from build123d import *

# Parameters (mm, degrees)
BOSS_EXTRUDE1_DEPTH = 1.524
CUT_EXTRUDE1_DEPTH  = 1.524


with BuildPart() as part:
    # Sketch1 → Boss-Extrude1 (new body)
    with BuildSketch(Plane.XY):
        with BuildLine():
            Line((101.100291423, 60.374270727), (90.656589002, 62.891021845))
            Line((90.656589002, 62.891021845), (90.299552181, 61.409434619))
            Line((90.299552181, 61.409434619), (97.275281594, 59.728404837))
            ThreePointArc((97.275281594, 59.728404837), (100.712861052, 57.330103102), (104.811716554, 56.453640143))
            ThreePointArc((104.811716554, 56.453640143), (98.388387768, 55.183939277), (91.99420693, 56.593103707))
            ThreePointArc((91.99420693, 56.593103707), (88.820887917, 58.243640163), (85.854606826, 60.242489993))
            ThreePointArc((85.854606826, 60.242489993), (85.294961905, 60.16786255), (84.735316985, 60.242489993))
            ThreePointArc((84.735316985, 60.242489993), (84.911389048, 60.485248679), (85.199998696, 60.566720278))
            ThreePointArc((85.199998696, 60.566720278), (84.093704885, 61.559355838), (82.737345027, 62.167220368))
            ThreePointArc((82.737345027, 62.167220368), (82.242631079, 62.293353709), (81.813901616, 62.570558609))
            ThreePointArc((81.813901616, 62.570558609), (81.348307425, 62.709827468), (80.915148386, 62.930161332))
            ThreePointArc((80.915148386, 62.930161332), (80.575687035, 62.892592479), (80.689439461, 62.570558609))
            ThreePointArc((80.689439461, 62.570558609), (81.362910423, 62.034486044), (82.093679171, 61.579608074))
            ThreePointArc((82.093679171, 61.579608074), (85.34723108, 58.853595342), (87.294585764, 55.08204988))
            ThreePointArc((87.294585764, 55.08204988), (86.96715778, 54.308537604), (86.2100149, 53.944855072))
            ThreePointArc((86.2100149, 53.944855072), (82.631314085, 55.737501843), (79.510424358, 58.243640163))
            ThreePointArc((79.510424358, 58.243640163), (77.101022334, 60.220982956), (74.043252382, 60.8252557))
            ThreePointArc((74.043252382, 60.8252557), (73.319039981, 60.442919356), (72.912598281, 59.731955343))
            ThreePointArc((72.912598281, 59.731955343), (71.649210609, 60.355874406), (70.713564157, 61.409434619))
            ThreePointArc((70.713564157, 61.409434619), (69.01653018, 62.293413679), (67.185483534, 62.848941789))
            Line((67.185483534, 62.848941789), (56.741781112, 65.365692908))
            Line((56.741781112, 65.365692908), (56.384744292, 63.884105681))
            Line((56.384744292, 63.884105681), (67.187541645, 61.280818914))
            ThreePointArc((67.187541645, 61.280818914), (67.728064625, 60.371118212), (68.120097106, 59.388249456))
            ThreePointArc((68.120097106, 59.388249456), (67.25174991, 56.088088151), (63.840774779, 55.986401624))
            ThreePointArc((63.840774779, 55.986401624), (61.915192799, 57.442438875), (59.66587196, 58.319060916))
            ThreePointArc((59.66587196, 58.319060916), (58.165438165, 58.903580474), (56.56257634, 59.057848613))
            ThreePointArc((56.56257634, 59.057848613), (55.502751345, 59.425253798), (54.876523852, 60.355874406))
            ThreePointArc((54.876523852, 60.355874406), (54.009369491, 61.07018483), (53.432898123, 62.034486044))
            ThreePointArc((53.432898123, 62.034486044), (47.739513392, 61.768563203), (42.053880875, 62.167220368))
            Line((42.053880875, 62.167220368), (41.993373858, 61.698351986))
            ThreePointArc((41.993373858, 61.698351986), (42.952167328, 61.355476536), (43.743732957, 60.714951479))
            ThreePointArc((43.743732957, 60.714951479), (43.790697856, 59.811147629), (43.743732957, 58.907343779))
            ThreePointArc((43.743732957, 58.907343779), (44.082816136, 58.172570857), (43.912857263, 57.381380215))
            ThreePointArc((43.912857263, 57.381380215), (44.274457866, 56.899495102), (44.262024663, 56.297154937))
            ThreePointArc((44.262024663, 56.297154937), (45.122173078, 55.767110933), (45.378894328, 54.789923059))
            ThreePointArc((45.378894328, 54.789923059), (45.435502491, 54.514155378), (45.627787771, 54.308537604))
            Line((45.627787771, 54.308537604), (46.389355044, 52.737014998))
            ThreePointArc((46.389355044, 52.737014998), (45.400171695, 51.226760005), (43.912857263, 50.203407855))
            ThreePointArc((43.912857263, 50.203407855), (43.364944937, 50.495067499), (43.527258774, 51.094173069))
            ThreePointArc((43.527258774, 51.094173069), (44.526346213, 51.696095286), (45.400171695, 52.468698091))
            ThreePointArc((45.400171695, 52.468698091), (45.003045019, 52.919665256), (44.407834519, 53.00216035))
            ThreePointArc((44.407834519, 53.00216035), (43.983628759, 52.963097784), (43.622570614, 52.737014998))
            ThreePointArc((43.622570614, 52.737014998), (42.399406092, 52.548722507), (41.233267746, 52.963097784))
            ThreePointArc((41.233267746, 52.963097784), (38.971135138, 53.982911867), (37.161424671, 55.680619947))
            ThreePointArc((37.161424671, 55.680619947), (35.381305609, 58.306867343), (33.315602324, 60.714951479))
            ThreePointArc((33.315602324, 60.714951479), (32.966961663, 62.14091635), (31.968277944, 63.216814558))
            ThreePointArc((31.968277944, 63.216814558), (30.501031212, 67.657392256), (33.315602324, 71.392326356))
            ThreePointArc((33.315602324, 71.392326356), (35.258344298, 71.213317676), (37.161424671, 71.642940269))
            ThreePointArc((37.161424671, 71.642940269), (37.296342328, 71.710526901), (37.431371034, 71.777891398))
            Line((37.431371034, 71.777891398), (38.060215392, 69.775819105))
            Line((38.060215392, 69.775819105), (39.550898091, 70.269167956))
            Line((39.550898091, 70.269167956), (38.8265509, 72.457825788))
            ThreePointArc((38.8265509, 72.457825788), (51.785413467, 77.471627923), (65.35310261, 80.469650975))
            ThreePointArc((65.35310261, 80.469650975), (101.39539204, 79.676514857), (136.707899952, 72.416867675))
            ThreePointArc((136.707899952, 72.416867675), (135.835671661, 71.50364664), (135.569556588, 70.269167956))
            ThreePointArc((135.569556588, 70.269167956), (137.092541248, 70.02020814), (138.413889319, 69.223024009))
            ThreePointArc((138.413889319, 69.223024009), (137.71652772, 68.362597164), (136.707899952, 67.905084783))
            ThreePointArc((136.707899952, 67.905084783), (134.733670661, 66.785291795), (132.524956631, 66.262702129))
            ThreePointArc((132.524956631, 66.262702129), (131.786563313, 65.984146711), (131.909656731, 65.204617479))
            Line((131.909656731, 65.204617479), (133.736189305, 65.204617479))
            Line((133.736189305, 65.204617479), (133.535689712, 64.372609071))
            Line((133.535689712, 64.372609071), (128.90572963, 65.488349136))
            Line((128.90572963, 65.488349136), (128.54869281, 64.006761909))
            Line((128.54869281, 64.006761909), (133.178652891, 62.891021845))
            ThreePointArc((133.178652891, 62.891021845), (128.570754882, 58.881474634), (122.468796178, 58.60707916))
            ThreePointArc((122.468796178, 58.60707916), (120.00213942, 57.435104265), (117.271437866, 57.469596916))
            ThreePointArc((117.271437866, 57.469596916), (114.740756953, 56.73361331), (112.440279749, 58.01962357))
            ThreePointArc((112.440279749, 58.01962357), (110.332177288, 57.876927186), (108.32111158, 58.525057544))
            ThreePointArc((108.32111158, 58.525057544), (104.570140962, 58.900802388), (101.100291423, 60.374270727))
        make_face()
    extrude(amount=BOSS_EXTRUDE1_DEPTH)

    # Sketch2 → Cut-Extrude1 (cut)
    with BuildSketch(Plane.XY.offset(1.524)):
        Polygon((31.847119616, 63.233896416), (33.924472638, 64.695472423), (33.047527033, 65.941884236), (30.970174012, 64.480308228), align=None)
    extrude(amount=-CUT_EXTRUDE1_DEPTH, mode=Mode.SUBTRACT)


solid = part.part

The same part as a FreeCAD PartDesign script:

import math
import FreeCAD as App
import Part
import Sketcher
from FreeCAD import Vector
Q = App.Units.Quantity


def add_polygon(sketch, points):
    """Adds a closed chain of lines whose ends are joined by coincident constraints."""
    first, n = sketch.GeometryCount, len(points)
    for a, b in zip(points, points[1:] + points[:1]):
        sketch.addGeometry(Part.LineSegment(App.Vector(*a, 0), App.Vector(*b, 0)), False)
    for i in range(n):
        sketch.addConstraint(Sketcher.Constraint("Coincident", first + i, 2, first + (i + 1) % n, 1))

doc = App.newDocument("Part")
body = doc.addObject("PartDesign::Body", "Body")

sketch1 = body.newObject("Sketcher::SketchObject", "Sketch")
sketch1.AttachmentSupport = (doc.getObject("XY_Plane"), [""])
sketch1.MapMode = "FlatFace"
sketch1.addGeometry(Part.LineSegment(Vector(90.656589, 62.891022, 0), Vector(101.100291, 60.374271, 0)), False)
sketch1.addGeometry(Part.ArcOfCircle(Part.Circle(Vector(107.68145, 71.049864, 0), Vector(0, 0, 1), 12.54113), math.radians(-121.652493), math.radians(-87.076355)), False)
sketch1.addGeometry(Part.ArcOfCircle(Part.Circle(Vector(111.014598, 63.438497, 0), Vector(0, 0, 1), 5.603281), math.radians(-118.731006), math.radians(-75.259778)), False)
sketch1.addGeometry(Part.ArcOfCircle(Part.Circle(Vector(115.126853, 60.124888, 0), Vector(0, 0, 1), 3.413183), math.radians(-141.916882), math.radians(-51.073417)), False)
sketch1.addGeometry(Part.ArcOfCircle(Part.Circle(Vector(118.711084, 63.334164, 0), Vector(0, 0, 1), 6.038686), math.radians(-103.792358), math.radians(-51.517683)), False)
sketch1.addGeometry(Part.ArcOfCircle(Part.Circle(Vector(125.126386, 67.492396, 0), Vector(0, 0, 1), 9.274246), math.radians(-106.651877), math.radians(-29.745304)), False)
sketch1.addGeometry(Part.LineSegment(Vector(133.178653, 62.891022, 0), Vector(128.548693, 64.006762, 0)), False)
sketch1.addGeometry(Part.LineSegment(Vector(128.548693, 64.006762, 0), Vector(128.90573, 65.488349, 0)), False)
sketch1.addGeometry(Part.LineSegment(Vector(128.90573, 65.488349, 0), Vector(133.53569, 64.372609, 0)), False)
sketch1.addGeometry(Part.LineSegment(Vector(133.53569, 64.372609, 0), Vector(133.736189, 65.204617, 0)), False)
sketch1.addGeometry(Part.LineSegment(Vector(133.736189, 65.204617, 0), Vector(131.909657, 65.204617, 0)), False)
sketch1.addGeometry(Part.ArcOfCircle(Part.Circle(Vector(132.326822, 65.669974, 0), Vector(0, 0, 1), 0.624967), math.radians(71.516456), math.radians(228.125626)), False)
sketch1.addGeometry(Part.ArcOfCircle(Part.Circle(Vector(131.799147, 74.259156, 0), Vector(0, 0, 1), 8.029326), math.radians(-84.813679), math.radians(-52.3126)), False)
sketch1.addGeometry(Part.ArcOfCircle(Part.Circle(Vector(136.243632, 70.269168, 0), Vector(0, 0, 1), 2.409239), math.radians(-78.889422), math.radians(-25.735779)), False)
sketch1.addGeometry(Part.ArcOfCircle(Part.Circle(Vector(135.685214, 66.193864, 0), Vector(0, 0, 1), 4.076944), math.radians(47.987388), math.radians(91.625625)), False)
sketch1.addGeometry(Part.ArcOfCircle(Part.Circle(Vector(137.889738, 70.414932, 0), Vector(0, 0, 1), 2.324756), math.radians(120.555376), math.radians(183.59484)), False)
sketch1.addGeometry(Part.ArcOfCircle(Part.Circle(Vector(78.998312, -118.781464, 0), Vector(0, 0, 1), 199.717797), math.radians(73.204557), math.radians(93.91764)), False)
sketch1.addGeometry(Part.ArcOfCircle(Part.Circle(Vector(78.295431, -10.30105, 0), Vector(0, 0, 1), 91.688734), math.radians(98.11469), math.radians(115.497136)), False)
sketch1.addGeometry(Part.LineSegment(Vector(38.826551, 72.457826, 0), Vector(39.550898, 70.269168, 0)), False)
sketch1.addGeometry(Part.LineSegment(Vector(39.550898, 70.269168, 0), Vector(38.060215, 69.775819, 0)), False)
sketch1.addGeometry(Part.LineSegment(Vector(38.060215, 69.775819, 0), Vector(37.431371, 71.777891, 0)), False)
sketch1.addGeometry(Part.ArcOfCircle(Part.Circle(Vector(78.295751, -10.301689, 0), Vector(0, 0, 1), 91.689449), math.radians(116.467011), math.radians(116.655602)), False)
sketch1.addGeometry(Part.ArcOfCircle(Part.Circle(Vector(34.852534, 77.440726, 0), Vector(0, 0, 1), 6.240617), math.radians(-104.257418), math.radians(-68.285739)), False)
sketch1.addGeometry(Part.ArcOfCircle(Part.Circle(Vector(35.473975, 66.837851, 0), Vector(0, 0, 1), 5.040022), math.radians(115.356343), math.radians(225.927198)), False)
sketch1.addGeometry(Part.ArcOfCircle(Part.Circle(Vector(30.39718, 60.757016, 0), Vector(0, 0, 1), 2.918725), math.radians(-0.82577), math.radians(57.433224)), False)
sketch1.addGeometry(Part.ArcOfCircle(Part.Circle(Vector(13.123378, 41.303609, 0), Vector(0, 0, 1), 28.009394), math.radians(30.883388), math.radians(43.870418)), False)
sketch1.addGeometry(Part.ArcOfCircle(Part.Circle(Vector(43.165013, 60.266876, 0), Vector(0, 0, 1), 7.55492), math.radians(-142.623097), math.radians(-104.814691)), False)
sketch1.addGeometry(Part.ArcOfCircle(Part.Circle(Vector(42.637741, 55.067514, 0), Vector(0, 0, 1), 2.530042), math.radians(-123.718894), math.radians(-67.091904)), False)
sketch1.addGeometry(Part.ArcOfCircle(Part.Circle(Vector(44.27774, 52.092048, 0), Vector(0, 0, 1), 0.919364), math.radians(81.865056), math.radians(135.449582)), False)
sketch1.addGeometry(Part.ArcOfCircle(Part.Circle(Vector(44.594355, 52.159428, 0), Vector(0, 0, 1), 0.863127), math.radians(20.996665), math.radians(102.480017)), False)
sketch1.addGeometry(Part.ArcOfCircle(Part.Circle(Vector(40.724295, 56.876729, 0), Vector(0, 0, 1), 6.426085), math.radians(-64.139257), math.radians(-43.311082)), False)
sketch1.addGeometry(Part.ArcOfCircle(Part.Circle(Vector(43.821801, 50.692833, 0), Vector(0, 0, 1), 0.497824), math.radians(126.274831), math.radians(280.53925)), False)
sketch1.addGeometry(Part.ArcOfCircle(Part.Circle(Vector(42.054014, 54.497492, 0), Vector(0, 0, 1), 4.679152), math.radians(-66.59296), math.radians(-22.100887)), False)
sketch1.addGeometry(Part.LineSegment(Vector(46.389355, 52.737015, 0), Vector(45.627788, 54.308538, 0)), False)
sketch1.addGeometry(Part.ArcOfCircle(Part.Circle(Vector(45.896413, 54.752463, 0), Vector(0, 0, 1), 0.518873), math.radians(175.859898), math.radians(238.821254)), False)
sketch1.addGeometry(Part.ArcOfCircle(Part.Circle(Vector(44.030131, 54.9579, 0), Vector(0, 0, 1), 1.359183), math.radians(-7.099129), math.radians(80.176553)), False)
sketch1.addGeometry(Part.ArcOfCircle(Part.Circle(Vector(43.395229, 56.616345, 0), Vector(0, 0, 1), 0.923698), math.radians(-20.215808), math.radians(55.917412)), False)
sketch1.addGeometry(Part.ArcOfCircle(Part.Circle(Vector(42.811954, 58.03172, 0), Vector(0, 0, 1), 1.278643), math.radians(-30.57174), math.radians(43.220434)), False)
sketch1.addGeometry(Part.ArcOfCircle(Part.Circle(Vector(35.070706, 59.811148, 0), Vector(0, 0, 1), 8.719992), math.radians(-5.949239), math.radians(5.949239)), False)
sketch1.addGeometry(Part.ArcOfCircle(Part.Circle(Vector(41.464613, 58.707772, 0), Vector(0, 0, 1), 3.036964), math.radians(41.369784), math.radians(79.973235)), False)
sketch1.addGeometry(Part.LineSegment(Vector(41.993374, 61.698352, 0), Vector(42.053881, 62.16722, 0)), False)
sketch1.addGeometry(Part.ArcOfCircle(Part.Circle(Vector(48.309625, 110.642927, 0), Vector(0, 0, 1), 48.877689), math.radians(-97.353326), math.radians(-83.983305)), False)
sketch1.addGeometry(Part.ArcOfCircle(Part.Circle(Vector(56.505416, 63.216815, 0), Vector(0, 0, 1), 3.292153), math.radians(-158.952894), math.radians(-119.65527)), False)
sketch1.addGeometry(Part.ArcOfCircle(Part.Circle(Vector(56.582599, 60.827907, 0), Vector(0, 0, 1), 1.770172), math.radians(-164.534422), math.radians(-90.648109)), False)
sketch1.addGeometry(Part.ArcOfCircle(Part.Circle(Vector(56.807659, 53.200194, 0), Vector(0, 0, 1), 5.862779), math.radians(60.822389), math.radians(92.395838)), False)
sketch1.addGeometry(Part.ArcOfCircle(Part.Circle(Vector(57.632338, 49.777152, 0), Vector(0, 0, 1), 8.78063), math.radians(45.003751), math.radians(76.609113)), False)
sketch1.addGeometry(Part.ArcOfCircle(Part.Circle(Vector(65.478238, 58.319061, 0), Vector(0, 0, 1), 2.850015), math.radians(-125.067806), math.radians(22.033703)), False)
sketch1.addGeometry(Part.ArcOfCircle(Part.Circle(Vector(61.660558, 57.38138, 0), Vector(0, 0, 1), 6.764109), math.radians(17.259132), math.radians(35.204017)), False)
sketch1.addGeometry(Part.LineSegment(Vector(67.187542, 61.280819, 0), Vector(56.384744, 63.884106, 0)), False)
sketch1.addGeometry(Part.LineSegment(Vector(56.384744, 63.884106, 0), Vector(56.741781, 65.365693, 0)), False)
sketch1.addGeometry(Part.LineSegment(Vector(56.741781, 65.365693, 0), Vector(67.185484, 62.848942, 0)), False)
sketch1.addGeometry(Part.ArcOfCircle(Part.Circle(Vector(65.117383, 52.737015, 0), Vector(0, 0, 1), 10.321245), math.radians(57.166461), math.radians(78.441221)), False)
sketch1.addGeometry(Part.ArcOfCircle(Part.Circle(Vector(73.877608, 63.277116, 0), Vector(0, 0, 1), 3.674154), math.radians(-149.447368), math.radians(-105.227255)), False)
sketch1.addGeometry(Part.ArcOfCircle(Part.Circle(Vector(74.338866, 59.388249, 0), Vector(0, 0, 1), 1.467097), math.radians(101.624448), math.radians(166.451043)), False)
sketch1.addGeometry(Part.ArcOfCircle(Part.Circle(Vector(74.369117, 54.435537, 0), Vector(0, 0, 1), 6.398023), math.radians(36.526893), math.radians(92.919455)), False)
sketch1.addGeometry(Part.ArcOfCircle(Part.Circle(Vector(92.837022, 71.64294, 0), Vector(0, 0, 1), 18.898133), math.radians(-134.844138), math.radians(-110.528295)), False)
sketch1.addGeometry(Part.ArcOfCircle(Part.Circle(Vector(86.107363, 55.128545, 0), Vector(0, 0, 1), 1.188133), math.radians(-85.043588), math.radians(-2.242744)), False)
sketch1.addGeometry(Part.ArcOfCircle(Part.Circle(Vector(76.940305, 52.124354, 0), Vector(0, 0, 1), 10.76843), math.radians(15.941968), math.radians(61.408398)), False)
sketch1.addGeometry(Part.ArcOfCircle(Part.Circle(Vector(85.661794, 68.126276, 0), Vector(0, 0, 1), 7.455891), math.radians(-131.828469), math.radians(-118.591602)), False)
sketch1.addGeometry(Part.ArcOfCircle(Part.Circle(Vector(80.760322, 62.776704, 0), Vector(0, 0, 1), 0.217991), math.radians(44.745598), math.radians(251.024551)), False)
sketch1.addGeometry(Part.ArcOfCircle(Part.Circle(Vector(82.353129, 65.221173, 0), Vector(0, 0, 1), 2.704907), math.radians(-122.114926), math.radians(-101.499041)), False)
sketch1.addGeometry(Part.ArcOfCircle(Part.Circle(Vector(82.875491, 63.742287, 0), Vector(0, 0, 1), 1.581113), math.radians(-132.176669), math.radians(-95.012466)), False)
sketch1.addGeometry(Part.ArcOfCircle(Part.Circle(Vector(81.470264, 57.522727, 0), Vector(0, 0, 1), 4.81423), math.radians(39.219336), math.radians(74.740282)), False)
sketch1.addGeometry(Part.ArcOfCircle(Part.Circle(Vector(85.173057, 60.11023, 0), Vector(0, 0, 1), 0.457285), math.radians(86.622384), math.radians(163.188203)), False)
sketch1.addGeometry(Part.ArcOfCircle(Part.Circle(Vector(85.294962, 62.303616, 0), Vector(0, 0, 1), 2.135754), math.radians(-105.19092), math.radians(-74.80908)), False)
sketch1.addGeometry(Part.ArcOfCircle(Part.Circle(Vector(104.954267, 85.385874, 0), Vector(0, 0, 1), 31.575097), math.radians(-127.221381), math.radians(-114.233228)), False)
sketch1.addGeometry(Part.ArcOfCircle(Part.Circle(Vector(98.562497, 71.185572, 0), Vector(0, 0, 1), 16.00258), math.radians(-114.233228), math.radians(-67.01356)), False)
sketch1.addGeometry(Part.ArcOfCircle(Part.Circle(Vector(104.932494, 67.041027, 0), Vector(0, 0, 1), 10.588076), math.radians(-136.318657), math.radians(-90.653585)), False)
sketch1.addGeometry(Part.LineSegment(Vector(97.275282, 59.728405, 0), Vector(90.299552, 61.409435, 0)), False)
sketch1.addGeometry(Part.LineSegment(Vector(90.299552, 61.409435, 0), Vector(90.656589, 62.891022, 0)), False)
sketch1.addConstraint(Sketcher.Constraint("Coincident", 0, 2, 1, 1))
sketch1.addConstraint(Sketcher.Constraint("Coincident", 1, 2, 2, 1))
sketch1.addConstraint(Sketcher.Constraint("Coincident", 2, 2, 3, 1))
sketch1.addConstraint(Sketcher.Constraint("Coincident", 3, 2, 4, 1))
sketch1.addConstraint(Sketcher.Constraint("Coincident", 4, 2, 5, 1))
sketch1.addConstraint(Sketcher.Constraint("Coincident", 5, 2, 6, 1))
sketch1.addConstraint(Sketcher.Constraint("Coincident", 6, 2, 7, 1))
sketch1.addConstraint(Sketcher.Constraint("Coincident", 7, 2, 8, 1))
sketch1.addConstraint(Sketcher.Constraint("Coincident", 8, 2, 9, 1))
sketch1.addConstraint(Sketcher.Constraint("Coincident", 9, 2, 10, 1))
sketch1.addConstraint(Sketcher.Constraint("Coincident", 10, 2, 11, 2))
sketch1.addConstraint(Sketcher.Constraint("Coincident", 11, 1, 12, 1))
sketch1.addConstraint(Sketcher.Constraint("Coincident", 12, 2, 13, 1))
sketch1.addConstraint(Sketcher.Constraint("Coincident", 13, 2, 14, 1))
sketch1.addConstraint(Sketcher.Constraint("Coincident", 14, 2, 15, 2))
sketch1.addConstraint(Sketcher.Constraint("Coincident", 15, 1, 16, 1))
sketch1.addConstraint(Sketcher.Constraint("Coincident", 16, 2, 17, 1))
sketch1.addConstraint(Sketcher.Constraint("Coincident", 17, 2, 18, 1))
sketch1.addConstraint(Sketcher.Constraint("Coincident", 18, 2, 19, 1))
sketch1.addConstraint(Sketcher.Constraint("Coincident", 19, 2, 20, 1))
sketch1.addConstraint(Sketcher.Constraint("Coincident", 20, 2, 21, 1))
sketch1.addConstraint(Sketcher.Constraint("Coincident", 21, 2, 22, 2))
sketch1.addConstraint(Sketcher.Constraint("Coincident", 22, 1, 23, 1))
sketch1.addConstraint(Sketcher.Constraint("Coincident", 23, 2, 24, 2))
sketch1.addConstraint(Sketcher.Constraint("Coincident", 24, 1, 25, 2))
sketch1.addConstraint(Sketcher.Constraint("Coincident", 25, 1, 26, 1))
sketch1.addConstraint(Sketcher.Constraint("Coincident", 26, 2, 27, 1))
sketch1.addConstraint(Sketcher.Constraint("Coincident", 27, 2, 28, 2))
sketch1.addConstraint(Sketcher.Constraint("Coincident", 28, 1, 29, 2))
sketch1.addConstraint(Sketcher.Constraint("Coincident", 29, 1, 30, 2))
sketch1.addConstraint(Sketcher.Constraint("Coincident", 30, 1, 31, 1))
sketch1.addConstraint(Sketcher.Constraint("Coincident", 31, 2, 32, 1))
sketch1.addConstraint(Sketcher.Constraint("Coincident", 32, 2, 33, 1))
sketch1.addConstraint(Sketcher.Constraint("Coincident", 33, 2, 34, 2))
sketch1.addConstraint(Sketcher.Constraint("Coincident", 34, 1, 35, 1))
sketch1.addConstraint(Sketcher.Constraint("Coincident", 35, 2, 36, 1))
sketch1.addConstraint(Sketcher.Constraint("Coincident", 36, 2, 37, 1))
sketch1.addConstraint(Sketcher.Constraint("Coincident", 37, 2, 38, 1))
sketch1.addConstraint(Sketcher.Constraint("Coincident", 38, 2, 39, 1))
sketch1.addConstraint(Sketcher.Constraint("Coincident", 39, 2, 40, 1))
sketch1.addConstraint(Sketcher.Constraint("Coincident", 40, 2, 41, 1))
sketch1.addConstraint(Sketcher.Constraint("Coincident", 41, 2, 42, 1))
sketch1.addConstraint(Sketcher.Constraint("Coincident", 42, 2, 43, 1))
sketch1.addConstraint(Sketcher.Constraint("Coincident", 43, 2, 44, 2))
sketch1.addConstraint(Sketcher.Constraint("Coincident", 44, 1, 45, 2))
sketch1.addConstraint(Sketcher.Constraint("Coincident", 45, 1, 46, 1))
sketch1.addConstraint(Sketcher.Constraint("Coincident", 46, 2, 47, 1))
sketch1.addConstraint(Sketcher.Constraint("Coincident", 47, 2, 48, 1))
sketch1.addConstraint(Sketcher.Constraint("Coincident", 48, 2, 49, 1))
sketch1.addConstraint(Sketcher.Constraint("Coincident", 49, 2, 50, 1))
sketch1.addConstraint(Sketcher.Constraint("Coincident", 50, 2, 51, 2))
sketch1.addConstraint(Sketcher.Constraint("Coincident", 51, 1, 52, 1))
sketch1.addConstraint(Sketcher.Constraint("Coincident", 52, 2, 53, 2))
sketch1.addConstraint(Sketcher.Constraint("Coincident", 53, 1, 54, 2))
sketch1.addConstraint(Sketcher.Constraint("Coincident", 54, 1, 55, 1))
sketch1.addConstraint(Sketcher.Constraint("Coincident", 55, 2, 56, 1))
sketch1.addConstraint(Sketcher.Constraint("Coincident", 56, 2, 57, 1))
sketch1.addConstraint(Sketcher.Constraint("Coincident", 57, 2, 58, 2))
sketch1.addConstraint(Sketcher.Constraint("Coincident", 58, 1, 59, 2))
sketch1.addConstraint(Sketcher.Constraint("Coincident", 59, 1, 60, 1))
sketch1.addConstraint(Sketcher.Constraint("Coincident", 60, 2, 61, 1))
sketch1.addConstraint(Sketcher.Constraint("Coincident", 61, 2, 62, 2))
sketch1.addConstraint(Sketcher.Constraint("Coincident", 62, 1, 63, 1))
sketch1.addConstraint(Sketcher.Constraint("Coincident", 63, 2, 64, 1))
sketch1.addConstraint(Sketcher.Constraint("Coincident", 64, 2, 65, 1))
sketch1.addConstraint(Sketcher.Constraint("Coincident", 65, 2, 66, 1))
sketch1.addConstraint(Sketcher.Constraint("Coincident", 66, 2, 67, 2))
sketch1.addConstraint(Sketcher.Constraint("Coincident", 67, 1, 68, 1))
sketch1.addConstraint(Sketcher.Constraint("Coincident", 68, 2, 69, 1))
sketch1.addConstraint(Sketcher.Constraint("Coincident", 69, 2, 0, 1))
sketch1.addConstraint(Sketcher.Constraint("Horizontal", 10))
sketch1.addConstraint(Sketcher.Constraint("Distance", 7, Q("0.06 in")))
sketch1.addConstraint(Sketcher.Constraint("Distance", 49, Q("0.06 in")))
sketch1.addConstraint(Sketcher.Constraint("Distance", 69, Q("0.06 in")))
sketch1.addConstraint(Sketcher.Constraint("Distance", 6, Q("0.1875 in")))
sketch1.addConstraint(Sketcher.Constraint("Distance", 8, Q("0.1875 in")))
sketch1.addConstraint(Sketcher.Constraint("Radius", 1, Q("12.54113 mm")))
sketch1.addConstraint(Sketcher.Constraint("Radius", 2, Q("5.603281 mm")))
sketch1.addConstraint(Sketcher.Constraint("Radius", 13, Q("2.409239 mm")))
sketch1.addConstraint(Sketcher.Constraint("Radius", 21, Q("91.689449 mm")))
sketch1.addConstraint(Sketcher.Constraint("Radius", 23, Q("5.040022 mm")))
sketch1.addConstraint(Sketcher.Constraint("Radius", 26, Q("7.55492 mm")))
sketch1.addConstraint(Sketcher.Constraint("Radius", 27, Q("2.530042 mm")))
sketch1.addConstraint(Sketcher.Constraint("Radius", 32, Q("4.679152 mm")))
sketch1.addConstraint(Sketcher.Constraint("Radius", 41, Q("48.877689 mm")))
sketch1.addConstraint(Sketcher.Constraint("Radius", 44, Q("5.862779 mm")))
sketch1.addConstraint(Sketcher.Constraint("Radius", 45, Q("8.78063 mm")))
sketch1.addConstraint(Sketcher.Constraint("Radius", 47, Q("6.764109 mm")))
sketch1.addConstraint(Sketcher.Constraint("Radius", 57, Q("10.76843 mm")))
sketch1.addConstraint(Sketcher.Constraint("Radius", 58, Q("7.455891 mm")))
sketch1.addConstraint(Sketcher.Constraint("Radius", 59, Q("0.217991 mm")))
sketch1.addConstraint(Sketcher.Constraint("Radius", 62, Q("4.81423 mm")))
sketch1.addConstraint(Sketcher.Constraint("Radius", 66, Q("16.00258 mm")))
sketch1.addConstraint(Sketcher.Constraint("Radius", 3, Q("3.413183 mm")))
sketch1.addConstraint(Sketcher.Constraint("Radius", 4, Q("6.038686 mm")))
sketch1.addConstraint(Sketcher.Constraint("Radius", 5, Q("9.274246 mm")))
sketch1.addConstraint(Sketcher.Constraint("Radius", 11, Q("0.624967 mm")))
sketch1.addConstraint(Sketcher.Constraint("Radius", 12, Q("8.029326 mm")))
sketch1.addConstraint(Sketcher.Constraint("Radius", 14, Q("4.076944 mm")))
sketch1.addConstraint(Sketcher.Constraint("Radius", 15, Q("2.324756 mm")))
sketch1.addConstraint(Sketcher.Constraint("Radius", 16, Q("199.717797 mm")))
sketch1.addConstraint(Sketcher.Constraint("Radius", 17, Q("91.688734 mm")))
sketch1.addConstraint(Sketcher.Constraint("Radius", 22, Q("6.240617 mm")))
sketch1.addConstraint(Sketcher.Constraint("Radius", 24, Q("2.918725 mm")))
sketch1.addConstraint(Sketcher.Constraint("Radius", 25, Q("28.009394 mm")))
sketch1.addConstraint(Sketcher.Constraint("Radius", 28, Q("0.919364 mm")))
sketch1.addConstraint(Sketcher.Constraint("Radius", 29, Q("0.863127 mm")))
sketch1.addConstraint(Sketcher.Constraint("Radius", 30, Q("6.426085 mm")))
sketch1.addConstraint(Sketcher.Constraint("Radius", 31, Q("0.497824 mm")))
sketch1.addConstraint(Sketcher.Constraint("Radius", 34, Q("0.518873 mm")))
sketch1.addConstraint(Sketcher.Constraint("Radius", 35, Q("1.359183 mm")))
sketch1.addConstraint(Sketcher.Constraint("Radius", 36, Q("0.923698 mm")))
sketch1.addConstraint(Sketcher.Constraint("Radius", 37, Q("1.278643 mm")))
sketch1.addConstraint(Sketcher.Constraint("Radius", 38, Q("8.719992 mm")))
sketch1.addConstraint(Sketcher.Constraint("Radius", 39, Q("3.036964 mm")))
sketch1.addConstraint(Sketcher.Constraint("Radius", 42, Q("3.292153 mm")))
sketch1.addConstraint(Sketcher.Constraint("Radius", 43, Q("1.770172 mm")))
sketch1.addConstraint(Sketcher.Constraint("Radius", 46, Q("2.850015 mm")))
sketch1.addConstraint(Sketcher.Constraint("Radius", 51, Q("10.321245 mm")))
sketch1.addConstraint(Sketcher.Constraint("Radius", 52, Q("3.674154 mm")))
sketch1.addConstraint(Sketcher.Constraint("Radius", 53, Q("1.467097 mm")))
sketch1.addConstraint(Sketcher.Constraint("Radius", 54, Q("6.398023 mm")))
sketch1.addConstraint(Sketcher.Constraint("Radius", 55, Q("18.898133 mm")))
sketch1.addConstraint(Sketcher.Constraint("Radius", 56, Q("1.188133 mm")))
sketch1.addConstraint(Sketcher.Constraint("Radius", 60, Q("2.704907 mm")))
sketch1.addConstraint(Sketcher.Constraint("Radius", 61, Q("1.581113 mm")))
sketch1.addConstraint(Sketcher.Constraint("Radius", 63, Q("0.457285 mm")))
sketch1.addConstraint(Sketcher.Constraint("Radius", 64, Q("2.135754 mm")))
sketch1.addConstraint(Sketcher.Constraint("Radius", 65, Q("31.575097 mm")))
sketch1.addConstraint(Sketcher.Constraint("Radius", 67, Q("10.588076 mm")))
sketch1.addConstraint(Sketcher.Constraint("Distance", 19, Q("1.5702 mm")))
sketch1.addConstraint(Sketcher.Constraint("DistanceX", -1, 1, 2, 3, Q("111.014598 mm")))
sketch1.addConstraint(Sketcher.Constraint("DistanceX", -1, 1, 31, 3, Q("43.821801 mm")))
sketch1.addConstraint(Sketcher.Constraint("DistanceY", -1, 1, 35, 3, Q("54.9579 mm")))
sketch1.addConstraint(Sketcher.Constraint("DistanceX", -1, 1, 43, 3, Q("56.582599 mm")))
sketch1.addConstraint(Sketcher.Constraint("DistanceX", -1, 1, 12, 2, Q("136.7079 mm")))
sketch1.addConstraint(Sketcher.Constraint("DistanceX", -1, 1, 15, 1, Q("136.7079 mm")))
sketch1.addConstraint(Sketcher.Constraint("DistanceX", -1, 1, 18, 2, Q("39.550898 mm")))
sketch1.addConstraint(Sketcher.Constraint("DistanceY", -1, 1, 29, 1, Q("52.468698 mm")))
sketch1.addConstraint(Sketcher.Constraint("DistanceX", -1, 1, 41, 2, Q("53.432898 mm")))
sketch1.addConstraint(Sketcher.Constraint("DistanceY", -1, 1, 45, 1, Q("55.986402 mm")))
sketch1.addConstraint(Sketcher.Constraint("DistanceX", -1, 1, 52, 2, Q("72.912598 mm")))
sketch1.addConstraint(Sketcher.Constraint("DistanceX", -1, 1, 60, 2, Q("81.813902 mm")))
sketch1.addConstraint(Sketcher.Constraint("DistanceX", -1, 1, 62, 1, Q("85.199999 mm")))
sketch1.addConstraint(Sketcher.Constraint("Distance", 0, Q("10.74267 mm")))
sketch1.addConstraint(Sketcher.Constraint("Distance", 20, Q("2.098509 mm")))
sketch1.addConstraint(Sketcher.Constraint("Distance", 33, Q("1.74633 mm")))
sketch1.addConstraint(Sketcher.Constraint("Distance", 50, Q("10.74267 mm")))
sketch1.addConstraint(Sketcher.Constraint("Distance", 68, Q("7.175421 mm")))
sketch1.addConstraint(Sketcher.Constraint("DistanceX", 10, 2, 10, 1, Q("1.826533 mm")))
sketch1.addConstraint(Sketcher.Constraint("DistanceX", -1, 1, 1, 3, Q("107.68145 mm")))
sketch1.addConstraint(Sketcher.Constraint("DistanceY", -1, 1, 3, 3, Q("60.124888 mm")))
sketch1.addConstraint(Sketcher.Constraint("DistanceX", -1, 1, 11, 3, Q("132.326822 mm")))
sketch1.addConstraint(Sketcher.Constraint("DistanceX", -1, 1, 15, 3, Q("137.889738 mm")))
sketch1.addConstraint(Sketcher.Constraint("DistanceY", -1, 1, 15, 3, Q("70.414932 mm")))
sketch1.addConstraint(Sketcher.Constraint("DistanceX", -1, 1, 17, 3, Q("78.295431 mm")))
sketch1.addConstraint(Sketcher.Constraint("DistanceY", 17, 3, -1, 1, Q("10.30105 mm")))
sketch1.addConstraint(Sketcher.Constraint("DistanceX", -1, 1, 21, 3, Q("78.295751 mm")))
sketch1.addConstraint(Sketcher.Constraint("DistanceY", 21, 3, -1, 1, Q("10.301689 mm")))
sketch1.addConstraint(Sketcher.Constraint("DistanceY", -1, 1, 23, 3, Q("66.837851 mm")))
sketch1.addConstraint(Sketcher.Constraint("DistanceX", -1, 1, 24, 3, Q("30.39718 mm")))
sketch1.addConstraint(Sketcher.Constraint("DistanceY", -1, 1, 25, 3, Q("41.303609 mm")))
sketch1.addConstraint(Sketcher.Constraint("DistanceX", -1, 1, 27, 3, Q("42.637741 mm")))
sketch1.addConstraint(Sketcher.Constraint("DistanceX", -1, 1, 28, 3, Q("44.27774 mm")))
sketch1.addConstraint(Sketcher.Constraint("DistanceY", -1, 1, 29, 3, Q("52.159428 mm")))
sketch1.addConstraint(Sketcher.Constraint("DistanceY", -1, 1, 30, 3, Q("56.876729 mm")))
sketch1.addConstraint(Sketcher.Constraint("DistanceX", -1, 1, 35, 3, Q("44.030131 mm")))
sketch1.addConstraint(Sketcher.Constraint("DistanceX", -1, 1, 36, 3, Q("43.395229 mm")))
sketch1.addConstraint(Sketcher.Constraint("DistanceY", -1, 1, 37, 3, Q("58.03172 mm")))
sketch1.addConstraint(Sketcher.Constraint("DistanceX", -1, 1, 44, 3, Q("56.807659 mm")))
sketch1.addConstraint(Sketcher.Constraint("DistanceY", -1, 1, 45, 3, Q("49.777152 mm")))
sketch1.addConstraint(Sketcher.Constraint("DistanceY", -1, 1, 46, 3, Q("58.319061 mm")))
sketch1.addConstraint(Sketcher.Constraint("DistanceY", -1, 1, 47, 3, Q("57.38138 mm")))
sketch1.addConstraint(Sketcher.Constraint("DistanceX", -1, 1, 52, 3, Q("73.877608 mm")))
sketch1.addConstraint(Sketcher.Constraint("DistanceY", -1, 1, 53, 3, Q("59.388249 mm")))
sketch1.addConstraint(Sketcher.Constraint("DistanceX", -1, 1, 55, 3, Q("92.837022 mm")))
sketch1.addConstraint(Sketcher.Constraint("DistanceY", -1, 1, 55, 3, Q("71.64294 mm")))
sketch1.addConstraint(Sketcher.Constraint("DistanceX", -1, 1, 60, 3, Q("82.353129 mm")))
sketch1.addConstraint(Sketcher.Constraint("DistanceX", -1, 1, 61, 3, Q("82.875491 mm")))
sketch1.addConstraint(Sketcher.Constraint("DistanceY", -1, 1, 63, 3, Q("60.11023 mm")))
sketch1.addConstraint(Sketcher.Constraint("DistanceX", -1, 1, 64, 3, Q("85.294962 mm")))
sketch1.addConstraint(Sketcher.Constraint("DistanceY", -1, 1, 66, 3, Q("71.185572 mm")))
sketch1.addConstraint(Sketcher.Constraint("DistanceX", -1, 1, 0, 2, Q("101.100291 mm")))
sketch1.addConstraint(Sketcher.Constraint("DistanceY", -1, 1, 0, 2, Q("60.374271 mm")))
sketch1.addConstraint(Sketcher.Constraint("DistanceX", -1, 1, 1, 2, Q("108.321112 mm")))
sketch1.addConstraint(Sketcher.Constraint("DistanceX", -1, 1, 2, 2, Q("112.44028 mm")))
sketch1.addConstraint(Sketcher.Constraint("DistanceY", -1, 1, 4, 2, Q("58.607079 mm")))
sketch1.addConstraint(Sketcher.Constraint("DistanceY", -1, 1, 5, 2, Q("62.891022 mm")))
sketch1.addConstraint(Sketcher.Constraint("DistanceY", -1, 1, 6, 2, Q("64.006762 mm")))
sketch1.addConstraint(Sketcher.Constraint("DistanceX", -1, 1, 7, 2, Q("128.90573 mm")))
sketch1.addConstraint(Sketcher.Constraint("DistanceY", -1, 1, 7, 2, Q("65.488349 mm")))
sketch1.addConstraint(Sketcher.Constraint("DistanceX", -1, 1, 8, 2, Q("133.53569 mm")))
sketch1.addConstraint(Sketcher.Constraint("DistanceX", -1, 1, 9, 2, Q("133.736189 mm")))
sketch1.addConstraint(Sketcher.Constraint("DistanceX", -1, 1, 13, 2, Q("138.413889 mm")))
sketch1.addConstraint(Sketcher.Constraint("DistanceY", -1, 1, 16, 2, Q("80.469651 mm")))
sketch1.addConstraint(Sketcher.Constraint("DistanceX", -1, 1, 17, 2, Q("38.826551 mm")))
sketch1.addConstraint(Sketcher.Constraint("DistanceY", -1, 1, 19, 2, Q("69.775819 mm")))
sketch1.addConstraint(Sketcher.Constraint("DistanceX", -1, 1, 20, 2, Q("37.431371 mm")))
sketch1.addConstraint(Sketcher.Constraint("DistanceY", -1, 1, 21, 2, Q("71.64294 mm")))
sketch1.addConstraint(Sketcher.Constraint("DistanceY", -1, 1, 24, 1, Q("60.714951 mm")))
sketch1.addConstraint(Sketcher.Constraint("DistanceY", -1, 1, 25, 1, Q("55.68062 mm")))
sketch1.addConstraint(Sketcher.Constraint("DistanceX", -1, 1, 27, 2, Q("43.622571 mm")))
sketch1.addConstraint(Sketcher.Constraint("DistanceY", -1, 1, 28, 1, Q("53.00216 mm")))
sketch1.addConstraint(Sketcher.Constraint("DistanceX", -1, 1, 29, 1, Q("45.400172 mm")))
sketch1.addConstraint(Sketcher.Constraint("DistanceX", -1, 1, 30, 1, Q("43.527259 mm")))
sketch1.addConstraint(Sketcher.Constraint("DistanceY", -1, 1, 36, 2, Q("57.38138 mm")))
sketch1.addConstraint(Sketcher.Constraint("DistanceY", -1, 1, 38, 2, Q("60.714951 mm")))
sketch1.addConstraint(Sketcher.Constraint("DistanceY", -1, 1, 39, 2, Q("61.698352 mm")))
sketch1.addConstraint(Sketcher.Constraint("DistanceX", -1, 1, 40, 2, Q("42.053881 mm")))
sketch1.addConstraint(Sketcher.Constraint("DistanceY", -1, 1, 40, 2, Q("62.16722 mm")))
sketch1.addConstraint(Sketcher.Constraint("DistanceY", -1, 1, 43, 2, Q("59.057849 mm")))
sketch1.addConstraint(Sketcher.Constraint("DistanceX", -1, 1, 44, 1, Q("59.665872 mm")))
sketch1.addConstraint(Sketcher.Constraint("DistanceY", -1, 1, 44, 1, Q("58.319061 mm")))
sketch1.addConstraint(Sketcher.Constraint("DistanceY", -1, 1, 46, 2, Q("59.388249 mm")))
sketch1.addConstraint(Sketcher.Constraint("DistanceX", -1, 1, 47, 2, Q("67.187542 mm")))
sketch1.addConstraint(Sketcher.Constraint("DistanceX", -1, 1, 49, 2, Q("56.741781 mm")))
sketch1.addConstraint(Sketcher.Constraint("DistanceY", -1, 1, 50, 2, Q("62.848942 mm")))
sketch1.addConstraint(Sketcher.Constraint("DistanceY", -1, 1, 54, 1, Q("58.24364 mm")))
sketch1.addConstraint(Sketcher.Constraint("DistanceY", -1, 1, 56, 2, Q("55.08205 mm")))
sketch1.addConstraint(Sketcher.Constraint("DistanceX", -1, 1, 57, 2, Q("82.093679 mm")))
sketch1.addConstraint(Sketcher.Constraint("DistanceY", -1, 1, 57, 2, Q("61.579608 mm")))
sketch1.addConstraint(Sketcher.Constraint("DistanceX", -1, 1, 58, 1, Q("80.689439 mm")))
sketch1.addConstraint(Sketcher.Constraint("DistanceY", -1, 1, 58, 1, Q("62.570559 mm")))
sketch1.addConstraint(Sketcher.Constraint("DistanceX", -1, 1, 59, 1, Q("80.915148 mm")))
sketch1.addConstraint(Sketcher.Constraint("DistanceY", -1, 1, 59, 1, Q("62.930161 mm")))
sketch1.addConstraint(Sketcher.Constraint("DistanceY", -1, 1, 61, 2, Q("62.16722 mm")))
sketch1.addConstraint(Sketcher.Constraint("DistanceY", -1, 1, 62, 1, Q("60.56672 mm")))
sketch1.addConstraint(Sketcher.Constraint("DistanceY", -1, 1, 63, 2, Q("60.24249 mm")))
sketch1.addConstraint(Sketcher.Constraint("DistanceY", -1, 1, 64, 2, Q("60.24249 mm")))
sketch1.addConstraint(Sketcher.Constraint("DistanceY", -1, 1, 66, 2, Q("56.45364 mm")))
sketch1.addConstraint(Sketcher.Constraint("DistanceX", -1, 1, 67, 1, Q("97.275282 mm")))
sketch1.addConstraint(Sketcher.Constraint("DistanceX", -1, 1, 69, 2, Q("90.656589 mm")))
sketch1.addConstraint(Sketcher.Constraint("Distance", 9, Q("0.855826 mm")))
sketch1.addConstraint(Sketcher.Constraint("Distance", 40, Q("0.472756 mm")))
sketch1.addConstraint(Sketcher.Constraint("Distance", 48, Q("11.112044 mm")))
sketch1.addConstraint(Sketcher.Constraint("DistanceX", -1, 1, 4, 3, Q("118.711084 mm")))
sketch1.addConstraint(Sketcher.Constraint("DistanceY", -1, 1, 4, 3, Q("63.334164 mm")))
sketch1.addConstraint(Sketcher.Constraint("DistanceX", -1, 1, 12, 3, Q("131.799147 mm")))
sketch1.addConstraint(Sketcher.Constraint("DistanceY", -1, 1, 12, 3, Q("74.259156 mm")))
sketch1.addConstraint(Sketcher.Constraint("DistanceX", -1, 1, 13, 3, Q("136.243632 mm")))
sketch1.addConstraint(Sketcher.Constraint("DistanceX", -1, 1, 14, 3, Q("135.685214 mm")))
sketch1.addConstraint(Sketcher.Constraint("DistanceX", -1, 1, 22, 3, Q("34.852534 mm")))
sketch1.addConstraint(Sketcher.Constraint("DistanceX", -1, 1, 23, 3, Q("35.473975 mm")))
sketch1.addConstraint(Sketcher.Constraint("DistanceY", -1, 1, 24, 3, Q("60.757016 mm")))
sketch1.addConstraint(Sketcher.Constraint("DistanceX", -1, 1, 26, 3, Q("43.165013 mm")))
sketch1.addConstraint(Sketcher.Constraint("DistanceX", -1, 1, 32, 3, Q("42.054014 mm")))
sketch1.addConstraint(Sketcher.Constraint("DistanceY", -1, 1, 32, 3, Q("54.497492 mm")))
sketch1.addConstraint(Sketcher.Constraint("DistanceX", -1, 1, 34, 3, Q("45.896413 mm")))
sketch1.addConstraint(Sketcher.Constraint("DistanceY", -1, 1, 34, 3, Q("54.752463 mm")))
sketch1.addConstraint(Sketcher.Constraint("DistanceY", -1, 1, 36, 3, Q("56.616345 mm")))
sketch1.addConstraint(Sketcher.Constraint("DistanceX", -1, 1, 38, 3, Q("35.070706 mm")))
sketch1.addConstraint(Sketcher.Constraint("DistanceY", -1, 1, 38, 3, Q("59.811148 mm")))
sketch1.addConstraint(Sketcher.Constraint("DistanceX", -1, 1, 41, 3, Q("48.309625 mm")))
sketch1.addConstraint(Sketcher.Constraint("DistanceX", -1, 1, 42, 3, Q("56.505416 mm")))
sketch1.addConstraint(Sketcher.Constraint("DistanceX", -1, 1, 51, 3, Q("65.117383 mm")))
sketch1.addConstraint(Sketcher.Constraint("DistanceY", -1, 1, 51, 3, Q("52.737015 mm")))
sketch1.addConstraint(Sketcher.Constraint("DistanceY", -1, 1, 52, 3, Q("63.277116 mm")))
sketch1.addConstraint(Sketcher.Constraint("DistanceX", -1, 1, 54, 3, Q("74.369117 mm")))
sketch1.addConstraint(Sketcher.Constraint("DistanceX", -1, 1, 56, 3, Q("86.107363 mm")))
sketch1.addConstraint(Sketcher.Constraint("DistanceY", -1, 1, 56, 3, Q("55.128545 mm")))
sketch1.addConstraint(Sketcher.Constraint("DistanceX", -1, 1, 65, 3, Q("104.954267 mm")))
sketch1.addConstraint(Sketcher.Constraint("DistanceX", -1, 1, 67, 3, Q("104.932494 mm")))
sketch1.addConstraint(Sketcher.Constraint("DistanceX", -1, 1, 32, 2, Q("46.389355 mm")))
sketch1.addConstraint(Sketcher.Constraint("DistanceX", -1, 1, 65, 2, Q("91.994207 mm")))
pad1 = body.newObject("PartDesign::Pad", "Pad")
pad1.Profile = sketch1
pad1.Length = Q("0.06 in")

sketch2 = body.newObject("Sketcher::SketchObject", "Sketch001")
sketch2.AttachmentSupport = (doc.getObject("XY_Plane"), [""])
sketch2.MapMode = "FlatFace"
sketch2.AttachmentOffset = App.Placement(Vector(0, 0, 0.06 * 25.4), App.Rotation())
add_polygon(sketch2, [(31.8, 63.2), (33.9, 64.7), (33, 65.9), (31, 64.5)])
sketch2.addConstraint(Sketcher.Constraint("Perpendicular", 0, 1))
sketch2.addConstraint(Sketcher.Constraint("Perpendicular", 1, 2))
sketch2.addConstraint(Sketcher.Constraint("Perpendicular", 2, 3))
sketch2.addConstraint(Sketcher.Constraint("Distance", 0, Q("0.1 in")))
sketch2.addConstraint(Sketcher.Constraint("Distance", 1, Q("0.06 in")))
sketch2.addConstraint(Sketcher.Constraint("DistanceX", 2, 2, 0, 2, Q("2.954299 mm")))
sketch2.addConstraint(Sketcher.Constraint("DistanceY", -1, 1, 2, 2, Q("64.480308 mm")))
sketch2.addConstraint(Sketcher.Constraint("DistanceX", -1, 1, 3, 2, Q("31.84712 mm")))
pocket1 = body.newObject("PartDesign::Pocket", "Pocket")
pocket1.Profile = sketch2
pocket1.Length = Q("0.06 in")

doc.recompute()
